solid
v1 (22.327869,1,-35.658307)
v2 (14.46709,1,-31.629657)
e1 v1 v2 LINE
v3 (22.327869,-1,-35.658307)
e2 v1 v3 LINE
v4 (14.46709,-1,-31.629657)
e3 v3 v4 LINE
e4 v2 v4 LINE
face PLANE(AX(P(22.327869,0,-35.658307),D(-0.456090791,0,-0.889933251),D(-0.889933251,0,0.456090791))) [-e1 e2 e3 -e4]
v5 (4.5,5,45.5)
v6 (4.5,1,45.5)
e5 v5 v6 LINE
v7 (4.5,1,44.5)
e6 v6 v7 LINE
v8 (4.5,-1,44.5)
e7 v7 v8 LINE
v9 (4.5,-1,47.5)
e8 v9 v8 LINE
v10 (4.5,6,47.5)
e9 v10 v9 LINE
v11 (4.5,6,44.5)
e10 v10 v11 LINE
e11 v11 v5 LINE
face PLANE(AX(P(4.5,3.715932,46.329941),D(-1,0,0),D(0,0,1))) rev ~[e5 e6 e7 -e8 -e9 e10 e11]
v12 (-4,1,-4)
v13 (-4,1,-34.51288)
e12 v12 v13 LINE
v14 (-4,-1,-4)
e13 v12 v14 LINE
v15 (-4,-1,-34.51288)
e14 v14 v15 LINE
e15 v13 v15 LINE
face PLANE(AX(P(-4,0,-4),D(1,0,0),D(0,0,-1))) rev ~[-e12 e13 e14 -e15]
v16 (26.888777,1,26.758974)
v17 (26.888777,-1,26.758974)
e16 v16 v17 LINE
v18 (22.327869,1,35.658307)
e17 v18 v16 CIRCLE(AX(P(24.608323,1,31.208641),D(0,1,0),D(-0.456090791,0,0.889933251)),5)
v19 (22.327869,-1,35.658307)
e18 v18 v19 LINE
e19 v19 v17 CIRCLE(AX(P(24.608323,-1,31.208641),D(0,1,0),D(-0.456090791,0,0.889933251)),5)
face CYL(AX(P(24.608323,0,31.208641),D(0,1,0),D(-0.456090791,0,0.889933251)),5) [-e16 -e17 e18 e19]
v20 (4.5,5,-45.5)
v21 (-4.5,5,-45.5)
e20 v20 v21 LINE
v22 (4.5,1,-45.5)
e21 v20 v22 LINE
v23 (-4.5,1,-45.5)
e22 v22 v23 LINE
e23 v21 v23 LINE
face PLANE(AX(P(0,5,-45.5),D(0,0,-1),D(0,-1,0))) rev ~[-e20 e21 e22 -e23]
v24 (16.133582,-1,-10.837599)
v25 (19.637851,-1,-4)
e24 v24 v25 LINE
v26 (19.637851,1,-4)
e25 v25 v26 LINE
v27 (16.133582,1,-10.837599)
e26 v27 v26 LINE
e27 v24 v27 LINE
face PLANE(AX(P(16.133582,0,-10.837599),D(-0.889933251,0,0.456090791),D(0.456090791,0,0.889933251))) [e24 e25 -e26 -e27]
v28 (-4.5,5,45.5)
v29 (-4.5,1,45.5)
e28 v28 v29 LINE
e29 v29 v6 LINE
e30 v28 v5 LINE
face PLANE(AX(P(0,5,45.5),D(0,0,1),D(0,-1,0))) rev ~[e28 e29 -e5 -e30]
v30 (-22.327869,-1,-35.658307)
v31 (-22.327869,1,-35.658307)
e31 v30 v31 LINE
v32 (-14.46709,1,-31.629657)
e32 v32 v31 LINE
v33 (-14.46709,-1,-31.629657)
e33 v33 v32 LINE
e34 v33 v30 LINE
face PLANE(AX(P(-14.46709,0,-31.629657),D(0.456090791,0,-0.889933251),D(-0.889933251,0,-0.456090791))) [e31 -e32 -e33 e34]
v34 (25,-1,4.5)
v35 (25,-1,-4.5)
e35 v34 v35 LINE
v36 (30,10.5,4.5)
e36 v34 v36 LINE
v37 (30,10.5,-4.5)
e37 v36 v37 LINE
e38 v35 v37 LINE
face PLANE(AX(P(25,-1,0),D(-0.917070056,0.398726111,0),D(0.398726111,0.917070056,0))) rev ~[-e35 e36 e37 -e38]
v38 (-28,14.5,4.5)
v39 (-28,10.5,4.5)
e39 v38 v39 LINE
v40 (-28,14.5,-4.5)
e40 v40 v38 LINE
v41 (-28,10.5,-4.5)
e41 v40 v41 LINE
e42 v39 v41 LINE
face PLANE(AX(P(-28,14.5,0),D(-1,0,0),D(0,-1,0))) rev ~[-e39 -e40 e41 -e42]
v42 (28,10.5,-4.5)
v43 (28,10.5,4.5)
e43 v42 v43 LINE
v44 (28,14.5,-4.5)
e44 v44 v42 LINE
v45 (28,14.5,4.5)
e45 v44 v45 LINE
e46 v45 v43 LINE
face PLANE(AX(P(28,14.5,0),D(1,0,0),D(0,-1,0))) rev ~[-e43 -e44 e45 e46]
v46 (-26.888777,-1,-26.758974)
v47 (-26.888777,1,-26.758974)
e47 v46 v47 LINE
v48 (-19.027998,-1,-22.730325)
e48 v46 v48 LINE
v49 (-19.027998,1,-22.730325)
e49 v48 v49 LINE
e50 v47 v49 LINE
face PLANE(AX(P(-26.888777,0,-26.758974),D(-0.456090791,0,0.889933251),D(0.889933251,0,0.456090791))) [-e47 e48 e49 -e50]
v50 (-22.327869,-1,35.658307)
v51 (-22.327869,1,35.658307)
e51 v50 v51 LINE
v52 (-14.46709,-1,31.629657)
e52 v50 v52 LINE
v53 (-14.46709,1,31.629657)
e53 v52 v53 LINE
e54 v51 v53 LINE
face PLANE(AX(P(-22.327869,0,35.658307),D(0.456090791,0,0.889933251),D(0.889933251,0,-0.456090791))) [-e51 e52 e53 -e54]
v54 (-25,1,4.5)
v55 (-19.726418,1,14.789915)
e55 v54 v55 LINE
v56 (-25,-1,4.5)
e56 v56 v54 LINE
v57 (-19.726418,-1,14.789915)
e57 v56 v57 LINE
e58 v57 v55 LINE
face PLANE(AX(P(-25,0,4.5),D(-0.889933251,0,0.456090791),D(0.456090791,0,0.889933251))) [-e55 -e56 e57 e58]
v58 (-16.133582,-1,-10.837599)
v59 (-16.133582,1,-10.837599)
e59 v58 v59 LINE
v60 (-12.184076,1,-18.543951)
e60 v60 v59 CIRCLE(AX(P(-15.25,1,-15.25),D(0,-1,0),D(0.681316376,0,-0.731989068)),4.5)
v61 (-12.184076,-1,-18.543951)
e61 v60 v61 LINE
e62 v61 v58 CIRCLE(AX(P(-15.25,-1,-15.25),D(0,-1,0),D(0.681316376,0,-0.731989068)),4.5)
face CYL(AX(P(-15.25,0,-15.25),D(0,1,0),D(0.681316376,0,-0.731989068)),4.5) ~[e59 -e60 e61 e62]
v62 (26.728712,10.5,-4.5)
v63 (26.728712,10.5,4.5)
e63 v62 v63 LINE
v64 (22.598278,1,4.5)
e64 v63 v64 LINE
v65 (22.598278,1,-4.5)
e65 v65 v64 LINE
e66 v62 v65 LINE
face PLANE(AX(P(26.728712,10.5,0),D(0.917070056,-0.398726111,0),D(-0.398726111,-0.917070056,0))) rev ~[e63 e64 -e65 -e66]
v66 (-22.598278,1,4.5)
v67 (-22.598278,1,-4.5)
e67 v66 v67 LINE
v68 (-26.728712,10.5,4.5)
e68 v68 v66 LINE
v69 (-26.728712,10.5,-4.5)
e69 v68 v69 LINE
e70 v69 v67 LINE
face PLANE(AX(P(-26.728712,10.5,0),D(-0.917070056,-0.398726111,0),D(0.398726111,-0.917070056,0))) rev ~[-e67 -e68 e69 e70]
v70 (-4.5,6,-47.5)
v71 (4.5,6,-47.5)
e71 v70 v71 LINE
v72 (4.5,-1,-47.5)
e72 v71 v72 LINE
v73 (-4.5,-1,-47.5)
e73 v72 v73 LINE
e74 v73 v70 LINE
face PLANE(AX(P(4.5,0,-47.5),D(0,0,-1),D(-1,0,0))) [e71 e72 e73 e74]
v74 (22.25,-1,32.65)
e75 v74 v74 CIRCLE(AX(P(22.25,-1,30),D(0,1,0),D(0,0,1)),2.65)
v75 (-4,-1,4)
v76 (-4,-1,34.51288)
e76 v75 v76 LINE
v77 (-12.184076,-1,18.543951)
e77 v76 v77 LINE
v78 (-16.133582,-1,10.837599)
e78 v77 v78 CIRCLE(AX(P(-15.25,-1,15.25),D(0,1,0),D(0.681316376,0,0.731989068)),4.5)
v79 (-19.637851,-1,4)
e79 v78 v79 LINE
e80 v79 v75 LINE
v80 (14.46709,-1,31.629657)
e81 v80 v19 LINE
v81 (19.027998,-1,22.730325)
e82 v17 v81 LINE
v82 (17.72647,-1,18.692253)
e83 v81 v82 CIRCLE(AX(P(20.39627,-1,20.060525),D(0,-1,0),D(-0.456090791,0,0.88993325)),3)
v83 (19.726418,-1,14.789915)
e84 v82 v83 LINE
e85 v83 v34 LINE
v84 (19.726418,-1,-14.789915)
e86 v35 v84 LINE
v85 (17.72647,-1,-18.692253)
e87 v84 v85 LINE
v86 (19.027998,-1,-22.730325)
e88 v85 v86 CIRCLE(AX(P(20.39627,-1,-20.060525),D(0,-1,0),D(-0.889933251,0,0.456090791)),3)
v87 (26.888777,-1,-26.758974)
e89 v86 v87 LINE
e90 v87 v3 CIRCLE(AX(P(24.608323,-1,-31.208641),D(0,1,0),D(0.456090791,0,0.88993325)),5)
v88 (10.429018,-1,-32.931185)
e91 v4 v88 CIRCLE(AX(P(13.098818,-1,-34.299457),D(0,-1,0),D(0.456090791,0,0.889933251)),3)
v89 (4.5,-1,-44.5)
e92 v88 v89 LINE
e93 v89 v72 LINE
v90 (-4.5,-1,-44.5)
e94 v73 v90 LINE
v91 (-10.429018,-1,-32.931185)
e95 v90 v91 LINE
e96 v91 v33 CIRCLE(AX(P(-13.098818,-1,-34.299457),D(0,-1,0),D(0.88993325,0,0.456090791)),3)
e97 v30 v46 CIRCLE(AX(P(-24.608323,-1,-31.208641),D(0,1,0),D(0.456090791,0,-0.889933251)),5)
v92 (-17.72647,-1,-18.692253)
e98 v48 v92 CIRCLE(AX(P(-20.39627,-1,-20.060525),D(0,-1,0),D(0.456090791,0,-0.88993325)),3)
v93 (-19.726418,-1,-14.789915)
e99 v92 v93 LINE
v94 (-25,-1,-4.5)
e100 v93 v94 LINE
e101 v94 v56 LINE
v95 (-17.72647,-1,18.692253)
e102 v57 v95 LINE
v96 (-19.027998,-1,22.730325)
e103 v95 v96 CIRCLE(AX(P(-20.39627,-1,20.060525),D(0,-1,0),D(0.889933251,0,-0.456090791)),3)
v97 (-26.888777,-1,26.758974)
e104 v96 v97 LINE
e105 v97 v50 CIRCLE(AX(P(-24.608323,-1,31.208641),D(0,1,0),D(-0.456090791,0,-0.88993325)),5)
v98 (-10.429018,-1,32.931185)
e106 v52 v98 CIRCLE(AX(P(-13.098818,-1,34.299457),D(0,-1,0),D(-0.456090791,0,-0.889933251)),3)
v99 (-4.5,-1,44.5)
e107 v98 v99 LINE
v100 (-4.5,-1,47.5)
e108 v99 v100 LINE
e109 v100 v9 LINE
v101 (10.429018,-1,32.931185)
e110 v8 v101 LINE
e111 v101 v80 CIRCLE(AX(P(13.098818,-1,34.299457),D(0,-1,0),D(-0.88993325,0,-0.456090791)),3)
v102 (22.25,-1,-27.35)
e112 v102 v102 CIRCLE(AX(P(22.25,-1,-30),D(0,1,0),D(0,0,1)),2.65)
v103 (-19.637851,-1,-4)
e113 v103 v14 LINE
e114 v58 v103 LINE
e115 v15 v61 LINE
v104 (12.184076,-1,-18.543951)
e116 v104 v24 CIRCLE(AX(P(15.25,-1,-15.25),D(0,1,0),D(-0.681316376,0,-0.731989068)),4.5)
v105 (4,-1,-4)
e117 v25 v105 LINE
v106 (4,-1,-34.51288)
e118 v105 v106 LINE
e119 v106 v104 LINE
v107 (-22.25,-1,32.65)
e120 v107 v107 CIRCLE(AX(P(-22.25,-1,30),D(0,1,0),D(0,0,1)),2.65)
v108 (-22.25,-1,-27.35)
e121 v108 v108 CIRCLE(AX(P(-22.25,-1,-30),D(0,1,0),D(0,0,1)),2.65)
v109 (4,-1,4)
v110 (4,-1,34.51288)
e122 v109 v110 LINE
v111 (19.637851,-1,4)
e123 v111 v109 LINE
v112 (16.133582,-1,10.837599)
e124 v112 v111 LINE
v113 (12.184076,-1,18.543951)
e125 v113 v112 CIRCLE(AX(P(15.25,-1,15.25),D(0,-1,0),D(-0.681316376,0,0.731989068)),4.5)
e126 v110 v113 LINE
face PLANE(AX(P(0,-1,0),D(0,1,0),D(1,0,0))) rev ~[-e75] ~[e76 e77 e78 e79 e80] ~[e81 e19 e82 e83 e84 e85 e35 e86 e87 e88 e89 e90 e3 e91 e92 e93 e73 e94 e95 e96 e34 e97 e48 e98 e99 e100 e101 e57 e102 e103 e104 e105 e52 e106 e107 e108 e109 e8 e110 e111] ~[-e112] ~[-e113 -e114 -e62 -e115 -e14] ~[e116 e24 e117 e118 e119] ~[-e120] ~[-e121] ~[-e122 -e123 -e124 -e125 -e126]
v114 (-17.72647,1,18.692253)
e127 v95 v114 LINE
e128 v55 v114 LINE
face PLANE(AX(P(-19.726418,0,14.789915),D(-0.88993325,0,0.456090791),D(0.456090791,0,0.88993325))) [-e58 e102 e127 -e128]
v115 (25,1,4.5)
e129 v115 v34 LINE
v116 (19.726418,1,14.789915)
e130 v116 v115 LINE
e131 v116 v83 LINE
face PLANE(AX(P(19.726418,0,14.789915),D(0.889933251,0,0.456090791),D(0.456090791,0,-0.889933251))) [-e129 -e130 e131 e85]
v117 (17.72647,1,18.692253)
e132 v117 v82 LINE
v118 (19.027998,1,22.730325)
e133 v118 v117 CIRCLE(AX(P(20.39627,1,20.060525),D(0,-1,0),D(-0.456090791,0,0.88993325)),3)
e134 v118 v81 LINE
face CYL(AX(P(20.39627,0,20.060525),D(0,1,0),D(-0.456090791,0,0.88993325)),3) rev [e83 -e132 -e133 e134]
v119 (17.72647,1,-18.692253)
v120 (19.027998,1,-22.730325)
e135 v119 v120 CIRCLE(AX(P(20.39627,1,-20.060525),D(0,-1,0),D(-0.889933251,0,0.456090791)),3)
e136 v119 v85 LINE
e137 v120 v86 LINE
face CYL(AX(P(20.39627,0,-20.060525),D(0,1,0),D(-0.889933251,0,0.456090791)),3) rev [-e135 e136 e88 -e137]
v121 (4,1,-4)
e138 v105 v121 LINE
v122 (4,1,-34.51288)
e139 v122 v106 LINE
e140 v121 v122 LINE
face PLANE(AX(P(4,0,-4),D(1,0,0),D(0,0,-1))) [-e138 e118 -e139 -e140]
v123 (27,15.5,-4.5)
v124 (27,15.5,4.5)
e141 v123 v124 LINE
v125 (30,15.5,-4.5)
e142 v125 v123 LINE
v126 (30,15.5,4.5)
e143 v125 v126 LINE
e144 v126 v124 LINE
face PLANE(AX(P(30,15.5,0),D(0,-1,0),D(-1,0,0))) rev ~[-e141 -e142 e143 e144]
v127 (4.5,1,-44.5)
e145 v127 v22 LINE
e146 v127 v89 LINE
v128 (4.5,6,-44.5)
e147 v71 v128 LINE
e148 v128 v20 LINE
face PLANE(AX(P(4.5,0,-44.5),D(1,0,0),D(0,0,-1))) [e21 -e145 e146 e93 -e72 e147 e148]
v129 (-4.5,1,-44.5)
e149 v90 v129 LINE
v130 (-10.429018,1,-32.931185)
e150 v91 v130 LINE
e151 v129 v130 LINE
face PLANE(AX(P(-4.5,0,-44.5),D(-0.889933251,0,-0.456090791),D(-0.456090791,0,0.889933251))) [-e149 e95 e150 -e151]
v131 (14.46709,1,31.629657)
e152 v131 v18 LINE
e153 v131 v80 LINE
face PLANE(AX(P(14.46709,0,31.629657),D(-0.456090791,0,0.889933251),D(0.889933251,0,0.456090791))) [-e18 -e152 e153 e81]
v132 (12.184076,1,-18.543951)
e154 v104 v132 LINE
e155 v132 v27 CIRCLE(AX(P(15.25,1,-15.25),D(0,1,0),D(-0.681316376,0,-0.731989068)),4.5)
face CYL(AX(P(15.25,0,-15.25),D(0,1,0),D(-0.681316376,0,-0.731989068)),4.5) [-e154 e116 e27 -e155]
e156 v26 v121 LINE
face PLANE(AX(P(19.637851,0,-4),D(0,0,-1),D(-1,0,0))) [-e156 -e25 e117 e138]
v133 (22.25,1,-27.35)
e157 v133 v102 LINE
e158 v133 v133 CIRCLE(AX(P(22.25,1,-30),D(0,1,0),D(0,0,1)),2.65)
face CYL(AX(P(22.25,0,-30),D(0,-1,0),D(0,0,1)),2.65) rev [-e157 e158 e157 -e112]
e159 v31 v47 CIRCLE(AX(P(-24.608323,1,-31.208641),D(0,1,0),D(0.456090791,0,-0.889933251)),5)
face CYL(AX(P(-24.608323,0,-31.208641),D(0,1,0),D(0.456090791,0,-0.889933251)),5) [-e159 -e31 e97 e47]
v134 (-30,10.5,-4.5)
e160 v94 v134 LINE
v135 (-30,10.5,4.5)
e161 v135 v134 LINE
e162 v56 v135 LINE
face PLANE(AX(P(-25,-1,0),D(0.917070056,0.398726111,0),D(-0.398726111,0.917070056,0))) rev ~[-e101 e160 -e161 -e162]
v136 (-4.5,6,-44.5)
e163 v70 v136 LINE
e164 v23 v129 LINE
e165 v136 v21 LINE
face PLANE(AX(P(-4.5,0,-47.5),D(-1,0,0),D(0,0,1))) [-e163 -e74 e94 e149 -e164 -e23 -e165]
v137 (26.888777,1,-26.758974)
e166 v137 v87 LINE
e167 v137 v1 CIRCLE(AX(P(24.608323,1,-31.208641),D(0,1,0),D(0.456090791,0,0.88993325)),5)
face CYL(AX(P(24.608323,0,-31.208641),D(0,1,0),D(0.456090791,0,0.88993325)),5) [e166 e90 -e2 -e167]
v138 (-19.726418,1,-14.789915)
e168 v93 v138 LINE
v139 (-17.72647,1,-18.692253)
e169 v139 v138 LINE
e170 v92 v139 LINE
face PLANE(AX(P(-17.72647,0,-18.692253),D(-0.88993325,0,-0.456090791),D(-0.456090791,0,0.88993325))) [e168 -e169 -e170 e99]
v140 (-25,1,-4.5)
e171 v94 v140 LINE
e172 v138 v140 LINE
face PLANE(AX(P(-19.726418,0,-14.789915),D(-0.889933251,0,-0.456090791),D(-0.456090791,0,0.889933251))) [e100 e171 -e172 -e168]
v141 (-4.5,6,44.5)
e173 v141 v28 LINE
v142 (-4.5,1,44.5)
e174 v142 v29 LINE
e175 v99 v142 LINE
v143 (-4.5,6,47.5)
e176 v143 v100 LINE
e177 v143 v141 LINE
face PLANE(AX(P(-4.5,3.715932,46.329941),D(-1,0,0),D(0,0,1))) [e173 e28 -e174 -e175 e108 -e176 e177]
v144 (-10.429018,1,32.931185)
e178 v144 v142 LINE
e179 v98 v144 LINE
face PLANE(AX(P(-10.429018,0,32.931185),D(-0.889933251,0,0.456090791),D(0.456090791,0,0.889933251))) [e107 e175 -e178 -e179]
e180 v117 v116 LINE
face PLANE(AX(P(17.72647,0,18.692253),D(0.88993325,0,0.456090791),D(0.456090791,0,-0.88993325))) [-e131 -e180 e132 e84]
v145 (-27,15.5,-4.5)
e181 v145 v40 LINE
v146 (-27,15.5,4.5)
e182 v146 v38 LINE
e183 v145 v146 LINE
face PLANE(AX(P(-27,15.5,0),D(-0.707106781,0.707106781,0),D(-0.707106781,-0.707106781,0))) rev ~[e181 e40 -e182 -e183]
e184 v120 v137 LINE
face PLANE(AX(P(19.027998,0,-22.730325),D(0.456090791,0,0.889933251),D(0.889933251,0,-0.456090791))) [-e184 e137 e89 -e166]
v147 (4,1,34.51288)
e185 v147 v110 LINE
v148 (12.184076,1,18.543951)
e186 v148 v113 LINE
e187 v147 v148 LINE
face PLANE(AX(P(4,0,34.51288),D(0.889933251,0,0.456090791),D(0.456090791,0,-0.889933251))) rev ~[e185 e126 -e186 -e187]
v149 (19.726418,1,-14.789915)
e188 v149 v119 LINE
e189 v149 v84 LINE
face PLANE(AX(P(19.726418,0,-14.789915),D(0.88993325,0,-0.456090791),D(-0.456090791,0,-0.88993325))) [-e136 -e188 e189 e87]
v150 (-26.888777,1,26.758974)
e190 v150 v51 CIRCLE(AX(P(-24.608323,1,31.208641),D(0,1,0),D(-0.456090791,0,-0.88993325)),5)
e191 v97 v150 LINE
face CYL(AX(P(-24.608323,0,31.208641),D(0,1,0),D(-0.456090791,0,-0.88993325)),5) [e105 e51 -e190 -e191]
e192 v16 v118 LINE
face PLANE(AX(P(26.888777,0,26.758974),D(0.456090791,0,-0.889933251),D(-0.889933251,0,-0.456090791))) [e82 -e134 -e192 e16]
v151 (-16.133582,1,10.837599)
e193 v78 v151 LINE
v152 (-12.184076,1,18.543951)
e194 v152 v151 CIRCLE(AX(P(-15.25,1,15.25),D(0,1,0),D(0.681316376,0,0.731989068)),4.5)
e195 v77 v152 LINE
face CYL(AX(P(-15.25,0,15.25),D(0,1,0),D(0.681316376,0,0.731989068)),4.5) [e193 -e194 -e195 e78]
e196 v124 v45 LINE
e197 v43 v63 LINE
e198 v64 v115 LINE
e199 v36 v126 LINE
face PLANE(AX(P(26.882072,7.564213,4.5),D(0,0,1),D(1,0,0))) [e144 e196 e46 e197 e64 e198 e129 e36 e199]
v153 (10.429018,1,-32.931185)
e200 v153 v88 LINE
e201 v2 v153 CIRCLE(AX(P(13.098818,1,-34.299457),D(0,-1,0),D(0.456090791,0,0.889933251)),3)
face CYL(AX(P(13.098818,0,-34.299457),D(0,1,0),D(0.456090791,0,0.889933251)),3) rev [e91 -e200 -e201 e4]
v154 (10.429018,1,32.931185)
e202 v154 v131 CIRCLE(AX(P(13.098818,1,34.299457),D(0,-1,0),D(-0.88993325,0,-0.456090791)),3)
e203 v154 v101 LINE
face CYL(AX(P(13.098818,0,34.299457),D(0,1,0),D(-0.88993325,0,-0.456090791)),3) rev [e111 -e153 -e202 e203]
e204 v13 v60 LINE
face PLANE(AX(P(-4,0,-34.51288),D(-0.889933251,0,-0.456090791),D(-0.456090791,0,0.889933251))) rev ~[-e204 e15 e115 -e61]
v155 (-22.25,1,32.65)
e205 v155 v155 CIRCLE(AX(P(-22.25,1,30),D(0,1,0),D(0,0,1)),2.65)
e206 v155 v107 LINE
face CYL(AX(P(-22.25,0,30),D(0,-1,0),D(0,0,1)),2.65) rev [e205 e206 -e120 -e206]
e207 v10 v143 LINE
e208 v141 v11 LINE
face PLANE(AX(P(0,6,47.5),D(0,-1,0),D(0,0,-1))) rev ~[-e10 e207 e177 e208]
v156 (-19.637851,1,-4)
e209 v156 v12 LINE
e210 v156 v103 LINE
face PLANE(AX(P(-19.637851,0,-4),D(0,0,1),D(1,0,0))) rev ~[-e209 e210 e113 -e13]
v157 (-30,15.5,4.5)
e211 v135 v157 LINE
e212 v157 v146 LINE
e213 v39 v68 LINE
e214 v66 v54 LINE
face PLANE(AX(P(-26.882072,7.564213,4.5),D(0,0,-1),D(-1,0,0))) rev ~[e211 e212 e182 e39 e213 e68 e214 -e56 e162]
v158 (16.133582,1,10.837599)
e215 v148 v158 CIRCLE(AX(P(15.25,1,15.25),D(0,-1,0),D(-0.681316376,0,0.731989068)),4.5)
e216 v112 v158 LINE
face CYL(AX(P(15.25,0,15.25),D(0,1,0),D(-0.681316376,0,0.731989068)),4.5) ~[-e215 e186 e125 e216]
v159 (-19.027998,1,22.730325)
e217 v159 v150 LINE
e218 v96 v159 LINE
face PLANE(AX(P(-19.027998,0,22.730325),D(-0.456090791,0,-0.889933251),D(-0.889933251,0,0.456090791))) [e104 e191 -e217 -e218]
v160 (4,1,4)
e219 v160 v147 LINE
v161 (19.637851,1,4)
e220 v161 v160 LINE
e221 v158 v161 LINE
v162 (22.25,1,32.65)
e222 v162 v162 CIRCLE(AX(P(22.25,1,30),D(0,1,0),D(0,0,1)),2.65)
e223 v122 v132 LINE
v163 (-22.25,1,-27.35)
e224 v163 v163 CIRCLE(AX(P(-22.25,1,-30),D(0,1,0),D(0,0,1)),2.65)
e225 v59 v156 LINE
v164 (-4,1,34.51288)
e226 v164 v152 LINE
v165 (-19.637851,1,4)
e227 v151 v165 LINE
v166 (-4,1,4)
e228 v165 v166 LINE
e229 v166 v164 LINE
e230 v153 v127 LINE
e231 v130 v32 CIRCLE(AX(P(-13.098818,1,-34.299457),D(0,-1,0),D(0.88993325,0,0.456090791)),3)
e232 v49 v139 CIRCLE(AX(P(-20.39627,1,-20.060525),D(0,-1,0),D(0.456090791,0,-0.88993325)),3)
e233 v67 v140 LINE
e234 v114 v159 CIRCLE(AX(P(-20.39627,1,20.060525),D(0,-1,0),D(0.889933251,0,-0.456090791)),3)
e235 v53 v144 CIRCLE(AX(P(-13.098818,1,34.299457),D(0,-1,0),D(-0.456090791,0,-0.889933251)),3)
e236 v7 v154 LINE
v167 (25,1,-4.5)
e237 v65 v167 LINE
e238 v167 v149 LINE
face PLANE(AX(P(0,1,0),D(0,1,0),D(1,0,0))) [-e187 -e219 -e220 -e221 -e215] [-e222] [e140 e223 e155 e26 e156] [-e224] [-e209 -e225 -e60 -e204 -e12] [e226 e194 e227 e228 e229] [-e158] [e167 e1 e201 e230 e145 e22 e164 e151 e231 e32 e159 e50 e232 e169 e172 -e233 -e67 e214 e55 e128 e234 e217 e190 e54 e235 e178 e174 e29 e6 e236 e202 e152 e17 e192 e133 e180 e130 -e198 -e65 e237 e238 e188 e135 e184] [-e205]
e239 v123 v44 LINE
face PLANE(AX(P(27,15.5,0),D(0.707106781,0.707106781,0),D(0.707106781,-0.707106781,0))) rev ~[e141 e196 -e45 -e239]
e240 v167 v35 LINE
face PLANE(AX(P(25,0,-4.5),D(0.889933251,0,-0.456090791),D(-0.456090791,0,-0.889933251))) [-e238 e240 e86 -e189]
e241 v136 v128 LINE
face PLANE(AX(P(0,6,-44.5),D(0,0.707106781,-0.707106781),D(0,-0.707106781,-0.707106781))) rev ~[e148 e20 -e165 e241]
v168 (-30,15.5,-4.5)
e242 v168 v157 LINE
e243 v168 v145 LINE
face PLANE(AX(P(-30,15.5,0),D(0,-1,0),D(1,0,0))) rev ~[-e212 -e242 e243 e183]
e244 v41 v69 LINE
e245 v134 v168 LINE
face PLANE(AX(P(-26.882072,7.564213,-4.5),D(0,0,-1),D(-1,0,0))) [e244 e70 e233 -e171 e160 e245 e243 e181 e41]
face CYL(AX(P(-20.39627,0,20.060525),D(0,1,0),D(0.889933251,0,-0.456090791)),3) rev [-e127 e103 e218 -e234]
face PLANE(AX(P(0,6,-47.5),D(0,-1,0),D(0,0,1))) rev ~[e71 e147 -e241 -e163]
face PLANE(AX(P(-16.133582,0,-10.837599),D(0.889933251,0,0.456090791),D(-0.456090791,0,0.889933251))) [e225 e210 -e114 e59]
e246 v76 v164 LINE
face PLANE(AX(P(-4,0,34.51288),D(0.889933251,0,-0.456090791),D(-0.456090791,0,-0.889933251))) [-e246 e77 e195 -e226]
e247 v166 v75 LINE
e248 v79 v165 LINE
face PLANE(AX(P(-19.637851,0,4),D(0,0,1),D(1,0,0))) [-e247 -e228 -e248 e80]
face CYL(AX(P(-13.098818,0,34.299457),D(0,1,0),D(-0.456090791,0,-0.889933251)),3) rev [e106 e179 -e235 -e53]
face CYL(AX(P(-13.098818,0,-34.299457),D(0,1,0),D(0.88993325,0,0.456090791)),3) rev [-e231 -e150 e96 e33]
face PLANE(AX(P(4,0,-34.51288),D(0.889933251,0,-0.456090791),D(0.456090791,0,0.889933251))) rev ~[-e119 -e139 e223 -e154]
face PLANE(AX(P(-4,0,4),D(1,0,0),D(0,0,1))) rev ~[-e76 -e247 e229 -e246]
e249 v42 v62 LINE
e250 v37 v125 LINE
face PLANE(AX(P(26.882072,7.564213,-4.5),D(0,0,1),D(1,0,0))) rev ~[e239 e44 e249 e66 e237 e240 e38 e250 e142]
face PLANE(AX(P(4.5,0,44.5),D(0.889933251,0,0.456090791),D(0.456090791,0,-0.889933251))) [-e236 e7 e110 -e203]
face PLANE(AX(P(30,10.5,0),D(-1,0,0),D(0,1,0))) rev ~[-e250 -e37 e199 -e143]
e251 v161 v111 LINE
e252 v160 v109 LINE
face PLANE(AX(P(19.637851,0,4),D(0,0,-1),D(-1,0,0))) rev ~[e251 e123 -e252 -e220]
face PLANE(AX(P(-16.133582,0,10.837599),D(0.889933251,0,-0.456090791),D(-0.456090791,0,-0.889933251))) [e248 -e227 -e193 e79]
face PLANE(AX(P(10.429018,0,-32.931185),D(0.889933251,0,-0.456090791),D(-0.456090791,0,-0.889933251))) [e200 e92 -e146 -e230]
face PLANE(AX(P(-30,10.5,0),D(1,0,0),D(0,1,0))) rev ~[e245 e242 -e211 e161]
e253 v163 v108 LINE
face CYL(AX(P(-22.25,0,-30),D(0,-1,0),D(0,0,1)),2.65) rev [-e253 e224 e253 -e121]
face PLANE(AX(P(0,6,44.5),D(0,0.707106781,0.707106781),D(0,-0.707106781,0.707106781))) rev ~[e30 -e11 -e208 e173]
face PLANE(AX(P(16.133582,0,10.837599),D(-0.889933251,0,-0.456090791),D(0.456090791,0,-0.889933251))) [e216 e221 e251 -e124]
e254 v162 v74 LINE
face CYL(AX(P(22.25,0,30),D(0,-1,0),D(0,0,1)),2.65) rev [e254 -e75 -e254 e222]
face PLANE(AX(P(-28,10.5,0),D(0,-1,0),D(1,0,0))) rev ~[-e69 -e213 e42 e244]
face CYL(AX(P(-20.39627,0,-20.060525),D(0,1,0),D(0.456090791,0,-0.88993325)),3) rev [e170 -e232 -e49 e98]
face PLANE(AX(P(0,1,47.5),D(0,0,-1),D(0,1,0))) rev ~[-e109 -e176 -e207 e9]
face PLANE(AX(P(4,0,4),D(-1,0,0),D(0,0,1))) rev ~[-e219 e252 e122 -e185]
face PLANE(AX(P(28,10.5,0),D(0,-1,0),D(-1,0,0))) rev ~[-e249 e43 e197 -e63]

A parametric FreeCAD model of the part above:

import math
import FreeCAD as App
import Part
import Sketcher
from FreeCAD import Vector
Q = App.Units.Quantity

doc = App.newDocument("Part")
params = doc.addObject("Spreadsheet::Sheet", "Params")
for row, (alias, value) in enumerate([
    ("sketch1_radius", "3 mm"),
    ("sketch1_radius2", "5 mm"),
    ("sketch1_diameter", "5.3 mm"),
    ("sketch1_radius3", "4.5 mm"),
    ("sketch1_width", "9 mm"),
    ("pad1_length", "2 mm"),
    ("sketch2_width", "5 mm"),
    ("sketch2_width2", "4 mm"),
    ("sketch2_height", "3 mm"),
    ("pad2_length", "9 mm"),
    ("sketch3_width", "3 mm"),
    ("sketch3_height", "5 mm"),
    ("sketch3_height2", "4 mm"),
    ("sketch3_height3", "2 mm"),
    ("pad3_length", "9 mm"),
], start=1):
    params.set(f"A{row}", alias)
    params.set(f"B{row}", "=" + value)
    params.setAlias(f"B{row}", alias)

body = doc.addObject("PartDesign::Body", "Body")

# Sketch on XZ plane
sketch1 = body.newObject("Sketcher::SketchObject", "Sketch")
sketch1.AttachmentSupport = (doc.getObject("XZ_Plane"), [""])
sketch1.MapMode = "FlatFace"
sketch1.addGeometry([
    Part.LineSegment(Vector(4.5, -47.5, 0), Vector(-4.5, -47.5, 0)),  # 0
    Part.LineSegment(Vector(-4.5, -47.5, 0), Vector(-4.5, -44.5, 0)),  # 1
    Part.LineSegment(Vector(-4.5, -44.5, 0), Vector(-10.4, -32.9, 0)),  # 2
    Part.ArcOfCircle(Part.Circle(Vector(-13.1, -34.3, 0), Vector(0, 0, 1), 3), math.radians(27), math.radians(117)),  # 3
    Part.LineSegment(Vector(-14.5, -31.6, 0), Vector(-22.3, -35.7, 0)),  # 4
    Part.ArcOfCircle(Part.Circle(Vector(-24.6, -31.2, 0), Vector(0, 0, 1), 5), math.radians(117), math.radians(297)),  # 5
    Part.LineSegment(Vector(-26.9, -26.8, 0), Vector(-19, -22.7, 0)),  # 6
    Part.ArcOfCircle(Part.Circle(Vector(-20.4, -20.1, 0), Vector(0, 0, 1), 3), math.radians(-63), math.radians(27)),  # 7
    Part.LineSegment(Vector(-17.7, -18.7, 0), Vector(-19.7, -14.8, 0)),  # 8
    Part.LineSegment(Vector(-19.7, -14.8, 0), Vector(-25, -4.5, 0)),  # 9
    Part.LineSegment(Vector(-25, -4.5, 0), Vector(-25, 4.5, 0)),  # 10
    Part.LineSegment(Vector(-25, 4.5, 0), Vector(-19.7, 14.8, 0)),  # 11
    Part.LineSegment(Vector(-19.7, 14.8, 0), Vector(-17.7, 18.7, 0)),  # 12
    Part.ArcOfCircle(Part.Circle(Vector(-20.4, 20.1, 0), Vector(0, 0, 1), 3), math.radians(-27), math.radians(63)),  # 13
    Part.LineSegment(Vector(-19, 22.7, 0), Vector(-26.9, 26.8, 0)),  # 14
    Part.ArcOfCircle(Part.Circle(Vector(-24.6, 31.2, 0), Vector(0, 0, 1), 5), math.radians(63), math.radians(243)),  # 15
    Part.LineSegment(Vector(-22.3, 35.7, 0), Vector(-14.5, 31.6, 0)),  # 16
    Part.ArcOfCircle(Part.Circle(Vector(-13.1, 34.3, 0), Vector(0, 0, 1), 3), math.radians(-117), math.radians(-27)),  # 17
    Part.LineSegment(Vector(-10.4, 32.9, 0), Vector(-4.5, 44.5, 0)),  # 18
    Part.LineSegment(Vector(-4.5, 44.5, 0), Vector(-4.5, 47.5, 0)),  # 19
    Part.LineSegment(Vector(-4.5, 47.5, 0), Vector(4.5, 47.5, 0)),  # 20
    Part.LineSegment(Vector(4.5, 47.5, 0), Vector(4.5, 44.5, 0)),  # 21
    Part.LineSegment(Vector(4.5, 44.5, 0), Vector(10.4, 32.9, 0)),  # 22
    Part.ArcOfCircle(Part.Circle(Vector(13.1, 34.3, 0), Vector(0, 0, 1), 3), math.radians(-153), math.radians(-63)),  # 23
    Part.LineSegment(Vector(14.5, 31.6, 0), Vector(22.3, 35.7, 0)),  # 24
    Part.ArcOfCircle(Part.Circle(Vector(24.6, 31.2, 0), Vector(0, 0, 1), 5), math.radians(-63), math.radians(117)),  # 25
    Part.LineSegment(Vector(26.9, 26.8, 0), Vector(19, 22.7, 0)),  # 26
    Part.ArcOfCircle(Part.Circle(Vector(20.4, 20.1, 0), Vector(0, 0, 1), 3), math.radians(117), math.radians(207)),  # 27
    Part.LineSegment(Vector(17.7, 18.7, 0), Vector(19.7, 14.8, 0)),  # 28
    Part.LineSegment(Vector(19.7, 14.8, 0), Vector(25, 4.5, 0)),  # 29
    Part.LineSegment(Vector(25, 4.5, 0), Vector(25, -4.5, 0)),  # 30
    Part.LineSegment(Vector(25, -4.5, 0), Vector(19.7, -14.8, 0)),  # 31
    Part.LineSegment(Vector(19.7, -14.8, 0), Vector(17.7, -18.7, 0)),  # 32
    Part.ArcOfCircle(Part.Circle(Vector(20.4, -20.1, 0), Vector(0, 0, 1), 3), math.radians(153), math.radians(243)),  # 33
    Part.LineSegment(Vector(19, -22.7, 0), Vector(26.9, -26.8, 0)),  # 34
    Part.ArcOfCircle(Part.Circle(Vector(24.6, -31.2, 0), Vector(0, 0, 1), 5), math.radians(-117), math.radians(63)),  # 35
    Part.LineSegment(Vector(22.3, -35.7, 0), Vector(14.5, -31.6, 0)),  # 36
    Part.ArcOfCircle(Part.Circle(Vector(13.1, -34.3, 0), Vector(0, 0, 1), 3), math.radians(63), math.radians(153)),  # 37
    Part.LineSegment(Vector(10.4, -32.9, 0), Vector(4.5, -44.5, 0)),  # 38
    Part.LineSegment(Vector(4.5, -44.5, 0), Vector(4.5, -47.5, 0)),  # 39
    Part.Circle(Vector(-22.2, 30, 0), Vector(0, 0, 1), 2.6),  # 40
    Part.LineSegment(Vector(-19.6, 4, 0), Vector(-4, 4, 0)),  # 41
    Part.LineSegment(Vector(-4, 4, 0), Vector(-4, 34.5, 0)),  # 42
    Part.LineSegment(Vector(-4, 34.5, 0), Vector(-12.2, 18.5, 0)),  # 43
    Part.ArcOfCircle(Part.Circle(Vector(-15.2, 15.2, 0), Vector(0, 0, 1), 4.5), math.radians(-101), math.radians(47)),  # 44
    Part.LineSegment(Vector(-16.1, 10.8, 0), Vector(-19.6, 4, 0)),  # 45
    Part.LineSegment(Vector(12.2, 18.5, 0), Vector(4, 34.5, 0)),  # 46
    Part.LineSegment(Vector(4, 34.5, 0), Vector(4, 4, 0)),  # 47
    Part.LineSegment(Vector(4, 4, 0), Vector(19.6, 4, 0)),  # 48
    Part.LineSegment(Vector(19.6, 4, 0), Vector(16.1, 10.8, 0)),  # 49
    Part.ArcOfCircle(Part.Circle(Vector(15.2, 15.2, 0), Vector(0, 0, 1), 4.5), math.radians(133), math.radians(281)),  # 50
    Part.Circle(Vector(22.2, 30, 0), Vector(0, 0, 1), 2.6),  # 51
    Part.Circle(Vector(-22.2, -30, 0), Vector(0, 0, 1), 2.6),  # 52
    Part.LineSegment(Vector(-12.2, -18.5, 0), Vector(-4, -34.5, 0)),  # 53
    Part.LineSegment(Vector(-4, -34.5, 0), Vector(-4, -4, 0)),  # 54
    Part.LineSegment(Vector(-4, -4, 0), Vector(-19.6, -4, 0)),  # 55
    Part.LineSegment(Vector(-19.6, -4, 0), Vector(-16.1, -10.8, 0)),  # 56
    Part.ArcOfCircle(Part.Circle(Vector(-15.2, -15.2, 0), Vector(0, 0, 1), 4.5), math.radians(-47), math.radians(101)),  # 57
    Part.LineSegment(Vector(19.6, -4, 0), Vector(4, -4, 0)),  # 58
    Part.LineSegment(Vector(4, -4, 0), Vector(4, -34.5, 0)),  # 59
    Part.LineSegment(Vector(4, -34.5, 0), Vector(12.2, -18.5, 0)),  # 60
    Part.ArcOfCircle(Part.Circle(Vector(15.2, -15.2, 0), Vector(0, 0, 1), 4.5), math.radians(79), math.radians(227)),  # 61
    Part.LineSegment(Vector(16.1, -10.8, 0), Vector(19.6, -4, 0)),  # 62
    Part.Circle(Vector(22.2, -30, 0), Vector(0, 0, 1), 2.6),  # 63
], False)
sketch1.addConstraint([
    Sketcher.Constraint("Coincident", 0, 2, 1, 1),
    Sketcher.Constraint("Coincident", 1, 2, 2, 1),
    Sketcher.Constraint("Tangent", 2, 2, 3, 1),
    Sketcher.Constraint("Tangent", 3, 2, 4, 1),
    Sketcher.Constraint("Tangent", 4, 2, 5, 2),
    Sketcher.Constraint("Tangent", 5, 1, 6, 1),
    Sketcher.Constraint("Tangent", 6, 2, 7, 1),
    Sketcher.Constraint("Tangent", 7, 2, 8, 1),
    Sketcher.Constraint("Coincident", 8, 2, 9, 1),
    Sketcher.Constraint("Coincident", 9, 2, 10, 1),
    Sketcher.Constraint("Coincident", 10, 2, 11, 1),
    Sketcher.Constraint("Coincident", 11, 2, 12, 1),
    Sketcher.Constraint("Tangent", 12, 2, 13, 1),
    Sketcher.Constraint("Tangent", 13, 2, 14, 1),
    Sketcher.Constraint("Tangent", 14, 2, 15, 2),
    Sketcher.Constraint("Tangent", 15, 1, 16, 1),
    Sketcher.Constraint("Tangent", 16, 2, 17, 1),
    Sketcher.Constraint("Tangent", 17, 2, 18, 1),
    Sketcher.Constraint("Coincident", 18, 2, 19, 1),
    Sketcher.Constraint("Coincident", 19, 2, 20, 1),
    Sketcher.Constraint("Coincident", 20, 2, 21, 1),
    Sketcher.Constraint("Coincident", 21, 2, 22, 1),
    Sketcher.Constraint("Tangent", 22, 2, 23, 1),
    Sketcher.Constraint("Tangent", 23, 2, 24, 1),
    Sketcher.Constraint("Tangent", 24, 2, 25, 2),
    Sketcher.Constraint("Tangent", 25, 1, 26, 1),
    Sketcher.Constraint("Tangent", 26, 2, 27, 1),
    Sketcher.Constraint("Tangent", 27, 2, 28, 1),
    Sketcher.Constraint("Coincident", 28, 2, 29, 1),
    Sketcher.Constraint("Coincident", 29, 2, 30, 1),
    Sketcher.Constraint("Coincident", 30, 2, 31, 1),
    Sketcher.Constraint("Coincident", 31, 2, 32, 1),
    Sketcher.Constraint("Tangent", 32, 2, 33, 1),
    Sketcher.Constraint("Tangent", 33, 2, 34, 1),
    Sketcher.Constraint("Tangent", 34, 2, 35, 2),
    Sketcher.Constraint("Tangent", 35, 1, 36, 1),
    Sketcher.Constraint("Tangent", 36, 2, 37, 1),
    Sketcher.Constraint("Tangent", 37, 2, 38, 1),
    Sketcher.Constraint("Coincident", 38, 2, 39, 1),
    Sketcher.Constraint("Coincident", 39, 2, 0, 1),
    Sketcher.Constraint("Coincident", 41, 2, 42, 1),
    Sketcher.Constraint("Coincident", 42, 2, 43, 1),
    Sketcher.Constraint("Coincident", 43, 2, 44, 2),
    Sketcher.Constraint("Coincident", 44, 1, 45, 1),
    Sketcher.Constraint("Coincident", 45, 2, 41, 1),
    Sketcher.Constraint("Coincident", 46, 2, 47, 1),
    Sketcher.Constraint("Coincident", 47, 2, 48, 1),
    Sketcher.Constraint("Coincident", 48, 2, 49, 1),
    Sketcher.Constraint("Coincident", 49, 2, 50, 2),
    Sketcher.Constraint("Coincident", 50, 1, 46, 1),
    Sketcher.Constraint("Coincident", 53, 2, 54, 1),
    Sketcher.Constraint("Coincident", 54, 2, 55, 1),
    Sketcher.Constraint("Coincident", 55, 2, 56, 1),
    Sketcher.Constraint("Coincident", 56, 2, 57, 2),
    Sketcher.Constraint("Coincident", 57, 1, 53, 1),
    Sketcher.Constraint("Coincident", 58, 2, 59, 1),
    Sketcher.Constraint("Coincident", 59, 2, 60, 1),
    Sketcher.Constraint("Coincident", 60, 2, 61, 2),
    Sketcher.Constraint("Coincident", 61, 1, 62, 1),
    Sketcher.Constraint("Coincident", 62, 2, 58, 1),
    Sketcher.Constraint("Horizontal", 0),
    Sketcher.Constraint("Vertical", 1),
    Sketcher.Constraint("Vertical", 10),
    Sketcher.Constraint("Vertical", 19),
    Sketcher.Constraint("Horizontal", 20),
    Sketcher.Constraint("Vertical", 21),
    Sketcher.Constraint("Vertical", 30),
    Sketcher.Constraint("Vertical", 39),
    Sketcher.Constraint("Horizontal", 41),
    Sketcher.Constraint("Vertical", 42),
    Sketcher.Constraint("Vertical", 47),
    Sketcher.Constraint("Horizontal", 48),
    Sketcher.Constraint("Vertical", 54),
    Sketcher.Constraint("Horizontal", 55),
    Sketcher.Constraint("Horizontal", 58),
    Sketcher.Constraint("Vertical", 59),
    Sketcher.Constraint("Equal", 3, 7),
    Sketcher.Constraint("Equal", 7, 13),
    Sketcher.Constraint("Equal", 5, 15),
    Sketcher.Constraint("Equal", 13, 17),
    Sketcher.Constraint("Equal", 17, 23),
    Sketcher.Constraint("Equal", 15, 25),
    Sketcher.Constraint("Equal", 23, 27),
    Sketcher.Constraint("Equal", 27, 33),
    Sketcher.Constraint("Equal", 25, 35),
    Sketcher.Constraint("Equal", 33, 37),
    Sketcher.Constraint("Equal", 44, 50),
    Sketcher.Constraint("Equal", 40, 51),
    Sketcher.Constraint("Equal", 51, 52),
    Sketcher.Constraint("Equal", 50, 57),
    Sketcher.Constraint("Equal", 57, 61),
    Sketcher.Constraint("Equal", 52, 63),
    Sketcher.Constraint("Symmetric", 3, 3, 23, 3, -1, 1),
    Sketcher.Constraint("Symmetric", 5, 3, 25, 3, -1, 1),
    Sketcher.Constraint("Symmetric", 7, 3, 27, 3, -1, 1),
    Sketcher.Constraint("Symmetric", 13, 3, 33, 3, -1, 1),
    Sketcher.Constraint("Symmetric", 15, 3, 35, 3, -1, 1),
    Sketcher.Constraint("Symmetric", 17, 3, 37, 3, -1, 1),
    Sketcher.Constraint("Symmetric", 51, 3, 52, 3, -1, 1),
    Sketcher.Constraint("Symmetric", 50, 3, 57, 3, -1, 1),
    Sketcher.Constraint("Symmetric", 44, 3, 61, 3, -1, 1),
    Sketcher.Constraint("Symmetric", 40, 3, 63, 3, -1, 1),
    Sketcher.Constraint("Symmetric", 0, 2, 20, 2, -1, 1),
    Sketcher.Constraint("Symmetric", 8, 2, 28, 2, -1, 1),
    Sketcher.Constraint("Symmetric", 9, 2, 29, 2, -1, 1),
    Sketcher.Constraint("Symmetric", 11, 2, 31, 2, -1, 1),
    Sketcher.Constraint("Symmetric", 18, 2, 38, 2, -1, 1),
    Sketcher.Constraint("Symmetric", 46, 2, 53, 2, -1, 1),
    Sketcher.Constraint("Symmetric", 48, 2, 55, 2, -1, 1),
    Sketcher.Constraint("Symmetric", 41, 2, 58, 2, -1, 1),
    Sketcher.Constraint("Symmetric", 17, 3, 23, 3, -2),
    Sketcher.Constraint("Symmetric", 15, 3, 25, 3, -2),
    Sketcher.Constraint("Symmetric", 13, 3, 27, 3, -2),
    Sketcher.Constraint("Symmetric", 44, 3, 50, 3, -2),
    Sketcher.Constraint("Symmetric", 40, 3, 51, 3, -2),
    Sketcher.Constraint("Symmetric", 18, 2, 21, 2, -2),
    Sketcher.Constraint("Symmetric", 11, 2, 28, 2, -2),
    Sketcher.Constraint("Symmetric", 42, 2, 46, 2, -2),
    Sketcher.Constraint("Symmetric", 45, 2, 48, 2, -2),
    Sketcher.Constraint("Perpendicular", 2, 4),
    Sketcher.Constraint("Parallel", 4, 6),
    Sketcher.Constraint("Perpendicular", 6, 8),
    Sketcher.Constraint("Parallel", 8, 9),
    Sketcher.Constraint("Parallel", 11, 12),
    Sketcher.Constraint("Perpendicular", 16, 18),
    Sketcher.Constraint("Parallel", 18, 31),
    Sketcher.Constraint("Parallel", 38, 43),
    Sketcher.Constraint("Parallel", 43, 45),
    Sketcher.Constraint("Parallel", 29, 46),
    Sketcher.Constraint("Parallel", 46, 49),
    Sketcher.Constraint("Parallel", 49, 53),
    Sketcher.Constraint("Parallel", 53, 56),
    Sketcher.Constraint("Parallel", 45, 60),
    Sketcher.Constraint("Parallel", 60, 62),
    Sketcher.Constraint("Horizontal", 53, 2, 59, 2),
    Sketcher.Constraint("Horizontal", 56, 2, 61, 1),
    Sketcher.Constraint("Equal", 20, 10),
    Sketcher.Constraint("Equal", 4, 6),
    Sketcher.Constraint("Radius", 3, Q("3 mm")),
    Sketcher.Constraint("Radius", 5, Q("5 mm")),
    Sketcher.Constraint("Diameter", 40, Q("5.3 mm")),
    Sketcher.Constraint("Radius", 44, Q("4.5 mm")),
    Sketcher.Constraint("DistanceX", 0, 2, 0, 1, Q("9 mm")),
    Sketcher.Constraint("DistanceY", 1, 1, 1, 2, Q("3 mm")),
    Sketcher.Constraint("DistanceY", -1, 1, 40, 3, Q("30 mm")),
    Sketcher.Constraint("DistanceX", 9, 2, -1, 1, Q("25 mm")),
    Sketcher.Constraint("DistanceX", 41, 2, -1, 1, Q("4 mm")),
    Sketcher.Constraint("DistanceY", -1, 1, 41, 2, Q("4 mm")),
    Sketcher.Constraint("DistanceY", 0, 2, -1, 1, Q("47.5 mm")),
    Sketcher.Constraint("DistanceX", 40, 3, -1, 1, Q("22.25 mm")),
    Sketcher.Constraint("DistanceX", 44, 3, -1, 1, Q("15.25 mm")),
    Sketcher.Constraint("DistanceY", -1, 1, 44, 3, Q("15.25 mm")),
    Sketcher.Constraint("Distance", 4, Q("8.832999 mm")),
    Sketcher.Constraint("DistanceX", 41, 1, 41, 2, Q("15.637851 mm")),
    Sketcher.Constraint("DistanceY", 42, 1, 42, 2, Q("30.51288 mm")),
    Sketcher.Constraint("Distance", 9, Q("11.56257 mm")),
    Sketcher.Constraint("DistanceY", 5, 3, -1, 1, Q("31.208641 mm")),
])
sketch1.setExpression("Constraints[138]", "Params.sketch1_radius")
sketch1.setExpression("Constraints[139]", "Params.sketch1_radius2")
sketch1.setExpression("Constraints[140]", "Params.sketch1_diameter")
sketch1.setExpression("Constraints[141]", "Params.sketch1_radius3")
sketch1.setExpression("Constraints[142]", "Params.sketch1_width")
pad1 = body.newObject("PartDesign::Pad", "Pad")
pad1.Profile = sketch1
pad1.setExpression("Length", "Params.pad1_length")
pad1.Midplane = True

# Sketch on YZ plane
sketch2 = body.newObject("Sketcher::SketchObject", "Sketch001")
sketch2.AttachmentSupport = (doc.getObject("YZ_Plane"), [""])
sketch2.MapMode = "FlatFace"
sketch2.addGeometry([
    Part.LineSegment(Vector(1, -47.5, 0), Vector(6, -47.5, 0)),  # 0
    Part.LineSegment(Vector(6, -47.5, 0), Vector(6, -44.5, 0)),  # 1
    Part.LineSegment(Vector(6, -44.5, 0), Vector(5, -45.5, 0)),  # 2
    Part.LineSegment(Vector(5, -45.5, 0), Vector(1, -45.5, 0)),  # 3
    Part.LineSegment(Vector(1, -45.5, 0), Vector(1, -47.5, 0)),  # 4
    Part.LineSegment(Vector(1, 47.5, 0), Vector(1, 45.5, 0)),  # 5
    Part.LineSegment(Vector(1, 45.5, 0), Vector(5, 45.5, 0)),  # 6
    Part.LineSegment(Vector(5, 45.5, 0), Vector(6, 44.5, 0)),  # 7
    Part.LineSegment(Vector(6, 44.5, 0), Vector(6, 47.5, 0)),  # 8
    Part.LineSegment(Vector(6, 47.5, 0), Vector(1, 47.5, 0)),  # 9
], False)
sketch2.addConstraint([
    Sketcher.Constraint("Coincident", 0, 2, 1, 1),
    Sketcher.Constraint("Coincident", 1, 2, 2, 1),
    Sketcher.Constraint("Coincident", 2, 2, 3, 1),
    Sketcher.Constraint("Coincident", 3, 2, 4, 1),
    Sketcher.Constraint("Coincident", 4, 2, 0, 1),
    Sketcher.Constraint("Coincident", 5, 2, 6, 1),
    Sketcher.Constraint("Coincident", 6, 2, 7, 1),
    Sketcher.Constraint("Coincident", 7, 2, 8, 1),
    Sketcher.Constraint("Coincident", 8, 2, 9, 1),
    Sketcher.Constraint("Coincident", 9, 2, 5, 1),
    Sketcher.Constraint("Horizontal", 0),
    Sketcher.Constraint("Vertical", 1),
    Sketcher.Constraint("Horizontal", 3),
    Sketcher.Constraint("Vertical", 4),
    Sketcher.Constraint("Vertical", 5),
    Sketcher.Constraint("Horizontal", 6),
    Sketcher.Constraint("Vertical", 8),
    Sketcher.Constraint("Horizontal", 9),
    Sketcher.Constraint("Symmetric", 3, 2, 5, 2, -1),
    Sketcher.Constraint("Symmetric", 1, 2, 7, 2, -1),
    Sketcher.Constraint("Perpendicular", 2, 7),
    Sketcher.Constraint("Vertical", 2, 2, 6, 2),
    Sketcher.Constraint("Equal", 4, 5),
    Sketcher.Constraint("DistanceX", 0, 1, 0, 2, Q("5 mm")),
    Sketcher.Constraint("DistanceX", 3, 2, 3, 1, Q("4 mm")),
    Sketcher.Constraint("DistanceY", 1, 1, 1, 2, Q("3 mm")),
    Sketcher.Constraint("DistanceX", -1, 1, 0, 2, Q("6 mm")),
    Sketcher.Constraint("DistanceY", 1, 2, 5, 2, Q("90 mm")),
])
sketch2.setExpression("Constraints[23]", "Params.sketch2_width")
sketch2.setExpression("Constraints[24]", "Params.sketch2_width2")
sketch2.setExpression("Constraints[25]", "Params.sketch2_height")
pad2 = body.newObject("PartDesign::Pad", "Pad001")
pad2.Profile = sketch2
pad2.setExpression("Length", "Params.pad2_length")
pad2.Midplane = True

# Sketch on XY plane
sketch3 = body.newObject("Sketcher::SketchObject", "Sketch002")
sketch3.AttachmentSupport = (doc.getObject("XY_Plane"), [""])
sketch3.MapMode = "FlatFace"
sketch3.addGeometry([
    Part.LineSegment(Vector(30, 10.5, 0), Vector(30, 15.5, 0)),  # 0
    Part.LineSegment(Vector(30, 15.5, 0), Vector(27, 15.5, 0)),  # 1
    Part.LineSegment(Vector(27, 15.5, 0), Vector(28, 14.5, 0)),  # 2
    Part.LineSegment(Vector(28, 14.5, 0), Vector(28, 10.5, 0)),  # 3
    Part.LineSegment(Vector(28, 10.5, 0), Vector(26.7, 10.5, 0)),  # 4
    Part.LineSegment(Vector(26.7, 10.5, 0), Vector(22.6, 1, 0)),  # 5
    Part.LineSegment(Vector(22.6, 1, 0), Vector(25, 1, 0)),  # 6
    Part.LineSegment(Vector(25, 1, 0), Vector(25, -1, 0)),  # 7
    Part.LineSegment(Vector(25, -1, 0), Vector(30, 10.5, 0)),  # 8
    Part.LineSegment(Vector(-28, 10.5, 0), Vector(-28, 14.5, 0)),  # 9
    Part.LineSegment(Vector(-28, 14.5, 0), Vector(-27, 15.5, 0)),  # 10
    Part.LineSegment(Vector(-27, 15.5, 0), Vector(-30, 15.5, 0)),  # 11
    Part.LineSegment(Vector(-30, 15.5, 0), Vector(-30, 10.5, 0)),  # 12
    Part.LineSegment(Vector(-30, 10.5, 0), Vector(-25, -1, 0)),  # 13
    Part.LineSegment(Vector(-25, -1, 0), Vector(-25, 1, 0)),  # 14
    Part.LineSegment(Vector(-25, 1, 0), Vector(-22.6, 1, 0)),  # 15
    Part.LineSegment(Vector(-22.6, 1, 0), Vector(-26.7, 10.5, 0)),  # 16
    Part.LineSegment(Vector(-26.7, 10.5, 0), Vector(-28, 10.5, 0)),  # 17
], False)
sketch3.addConstraint([
    Sketcher.Constraint("Coincident", 0, 2, 1, 1),
    Sketcher.Constraint("Coincident", 1, 2, 2, 1),
    Sketcher.Constraint("Coincident", 2, 2, 3, 1),
    Sketcher.Constraint("Coincident", 3, 2, 4, 1),
    Sketcher.Constraint("Coincident", 4, 2, 5, 1),
    Sketcher.Constraint("Coincident", 5, 2, 6, 1),
    Sketcher.Constraint("Coincident", 6, 2, 7, 1),
    Sketcher.Constraint("Coincident", 7, 2, 8, 1),
    Sketcher.Constraint("Coincident", 8, 2, 0, 1),
    Sketcher.Constraint("Coincident", 9, 2, 10, 1),
    Sketcher.Constraint("Coincident", 10, 2, 11, 1),
    Sketcher.Constraint("Coincident", 11, 2, 12, 1),
    Sketcher.Constraint("Coincident", 12, 2, 13, 1),
    Sketcher.Constraint("Coincident", 13, 2, 14, 1),
    Sketcher.Constraint("Coincident", 14, 2, 15, 1),
    Sketcher.Constraint("Coincident", 15, 2, 16, 1),
    Sketcher.Constraint("Coincident", 16, 2, 17, 1),
    Sketcher.Constraint("Coincident", 17, 2, 9, 1),
    Sketcher.Constraint("Vertical", 0),
    Sketcher.Constraint("Horizontal", 1),
    Sketcher.Constraint("Vertical", 3),
    Sketcher.Constraint("Horizontal", 4),
    Sketcher.Constraint("Horizontal", 6),
    Sketcher.Constraint("Vertical", 7),
    Sketcher.Constraint("Vertical", 9),
    Sketcher.Constraint("Horizontal", 11),
    Sketcher.Constraint("Vertical", 12),
    Sketcher.Constraint("Vertical", 14),
    Sketcher.Constraint("Horizontal", 15),
    Sketcher.Constraint("Horizontal", 17),
    Sketcher.Constraint("Symmetric", 6, 2, 13, 2, -1, 1),
    Sketcher.Constraint("Symmetric", 2, 2, 9, 2, -2),
    Sketcher.Constraint("Symmetric", 1, 2, 10, 2, -2),
    Sketcher.Constraint("Symmetric", 8, 2, 12, 2, -2),
    Sketcher.Constraint("Symmetric", 5, 2, 15, 2, -2),
    Sketcher.Constraint("Symmetric", 4, 2, 16, 2, -2),
    Sketcher.Constraint("Parallel", 5, 8),
    Sketcher.Constraint("Perpendicular", 2, 10),
    Sketcher.Constraint("Parallel", 13, 16),
    Sketcher.Constraint("Horizontal", 4, 2, 8, 2),
    Sketcher.Constraint("DistanceX", 1, 2, 1, 1, Q("3 mm")),
    Sketcher.Constraint("DistanceY", 0, 1, 0, 2, Q("5 mm")),
    Sketcher.Constraint("DistanceY", 3, 2, 3, 1, Q("4 mm")),
    Sketcher.Constraint("DistanceY", 7, 2, 7, 1, Q("2 mm")),
    Sketcher.Constraint("DistanceX", -1, 1, 0, 2, Q("30 mm")),
    Sketcher.Constraint("DistanceX", -1, 1, 6, 2, Q("25 mm")),
    Sketcher.Constraint("DistanceY", -1, 1, 0, 2, Q("15.5 mm")),
    Sketcher.Constraint("DistanceX", 4, 2, 4, 1, Q("1.271288 mm")),
])
sketch3.setExpression("Constraints[40]", "Params.sketch3_width")
sketch3.setExpression("Constraints[41]", "Params.sketch3_height")
sketch3.setExpression("Constraints[42]", "Params.sketch3_height2")
sketch3.setExpression("Constraints[43]", "Params.sketch3_height3")
pad3 = body.newObject("PartDesign::Pad", "Pad002")
pad3.Profile = sketch3
pad3.setExpression("Length", "Params.pad3_length")
pad3.Midplane = True

doc.recompute()
